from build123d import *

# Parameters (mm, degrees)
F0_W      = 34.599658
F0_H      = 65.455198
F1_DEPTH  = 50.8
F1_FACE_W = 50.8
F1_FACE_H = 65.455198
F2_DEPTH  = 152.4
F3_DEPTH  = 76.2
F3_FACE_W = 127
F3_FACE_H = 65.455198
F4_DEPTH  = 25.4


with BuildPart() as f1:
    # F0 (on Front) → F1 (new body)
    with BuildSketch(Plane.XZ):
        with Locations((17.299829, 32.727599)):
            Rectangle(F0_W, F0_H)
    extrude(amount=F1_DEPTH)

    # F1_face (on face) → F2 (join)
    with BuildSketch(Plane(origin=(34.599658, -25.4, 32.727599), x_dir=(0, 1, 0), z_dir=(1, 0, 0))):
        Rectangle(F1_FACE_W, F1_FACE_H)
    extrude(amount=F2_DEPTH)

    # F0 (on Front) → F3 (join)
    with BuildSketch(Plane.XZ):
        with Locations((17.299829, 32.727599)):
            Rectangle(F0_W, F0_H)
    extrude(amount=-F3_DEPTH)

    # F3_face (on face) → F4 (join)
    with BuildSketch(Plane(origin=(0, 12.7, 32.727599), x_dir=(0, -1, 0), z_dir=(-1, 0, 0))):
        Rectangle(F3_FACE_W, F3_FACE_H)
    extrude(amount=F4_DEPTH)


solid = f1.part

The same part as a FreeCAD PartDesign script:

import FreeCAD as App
import Part
import Sketcher
Q = App.Units.Quantity

doc = App.newDocument("Part")
body = doc.addObject("PartDesign::Body", "Body")

# Sketch on XZ plane
sketch1 = body.newObject("Sketcher::SketchObject", "Sketch")
sketch1.AttachmentSupport = (doc.getObject("XZ_Plane"), [""])
sketch1.MapMode = "FlatFace"
sketch1.addGeometry(Part.LineSegment(App.Vector(0, 65, 0), App.Vector(0, 0, 0)), False)
sketch1.addGeometry(Part.LineSegment(App.Vector(0, 0, 0), App.Vector(35, 0, 0)), False)
sketch1.addGeometry(Part.LineSegment(App.Vector(35, 0, 0), App.Vector(35, 65, 0)), False)
sketch1.addGeometry(Part.LineSegment(App.Vector(35, 65, 0), App.Vector(0, 65, 0)), False)
sketch1.addConstraint(Sketcher.Constraint("Coincident", 0, 2, 1, 1))
sketch1.addConstraint(Sketcher.Constraint("Coincident", 1, 2, 2, 1))
sketch1.addConstraint(Sketcher.Constraint("Coincident", 2, 2, 3, 1))
sketch1.addConstraint(Sketcher.Constraint("Coincident", 3, 2, 0, 1))
sketch1.addConstraint(Sketcher.Constraint("Vertical", 0))
sketch1.addConstraint(Sketcher.Constraint("Horizontal", 1))
sketch1.addConstraint(Sketcher.Constraint("Vertical", 2))
sketch1.addConstraint(Sketcher.Constraint("Horizontal", 3))
sketch1.addConstraint(Sketcher.Constraint("Coincident", 0, 2, -1, 1))
sketch1.addConstraint(Sketcher.Constraint("DistanceX", 1, 1, 1, 2, 34.599658))
sketch1.addConstraint(Sketcher.Constraint("DistanceY", 0, 2, 0, 1, 65.455198))
pad1 = body.newObject("PartDesign::Pad", "Pad")
pad1.Profile = sketch1
pad1.Length = Q("2 in")

# Sketch on YZ plane
sketch2 = body.newObject("Sketcher::SketchObject", "Sketch001")
sketch2.AttachmentSupport = (doc.getObject("YZ_Plane"), [""])
sketch2.MapMode = "FlatFace"
sketch2.AttachmentOffset = App.Placement(App.Vector(0, 0, 34.599658), App.Rotation())
sketch2.addGeometry(Part.LineSegment(App.Vector(-51, 65, 0), App.Vector(-51, 0, 0)), False)
sketch2.addGeometry(Part.LineSegment(App.Vector(-51, 0, 0), App.Vector(0, 0, 0)), False)
sketch2.addGeometry(Part.LineSegment(App.Vector(0, 0, 0), App.Vector(0, 65, 0)), False)
sketch2.addGeometry(Part.LineSegment(App.Vector(0, 65, 0), App.Vector(-51, 65, 0)), False)
sketch2.addConstraint(Sketcher.Constraint("Coincident", 0, 2, 1, 1))
sketch2.addConstraint(Sketcher.Constraint("Coincident", 1, 2, 2, 1))
sketch2.addConstraint(Sketcher.Constraint("Coincident", 2, 2, 3, 1))
sketch2.addConstraint(Sketcher.Constraint("Coincident", 3, 2, 0, 1))
sketch2.addConstraint(Sketcher.Constraint("Vertical", 0))
sketch2.addConstraint(Sketcher.Constraint("Horizontal", 1))
sketch2.addConstraint(Sketcher.Constraint("Vertical", 2))
sketch2.addConstraint(Sketcher.Constraint("Horizontal", 3))
sketch2.addConstraint(Sketcher.Constraint("Coincident", 1, 2, -1, 1))
sketch2.addConstraint(Sketcher.Constraint("DistanceX", 1, 1, 1, 2, Q("2 in")))
sketch2.addConstraint(Sketcher.Constraint("DistanceY", 0, 2, 0, 1, 65.455198))
pad2 = body.newObject("PartDesign::Pad", "Pad001")
pad2.Profile = sketch2
pad2.Length = Q("6 in")

# Sketch on XZ plane
sketch3 = body.newObject("Sketcher::SketchObject", "Sketch002")
sketch3.AttachmentSupport = (doc.getObject("XZ_Plane"), [""])
sketch3.MapMode = "FlatFace"
sketch3.addGeometry(Part.LineSegment(App.Vector(0, 65, 0), App.Vector(0, 0, 0)), False)
sketch3.addGeometry(Part.LineSegment(App.Vector(0, 0, 0), App.Vector(35, 0, 0)), False)
sketch3.addGeometry(Part.LineSegment(App.Vector(35, 0, 0), App.Vector(35, 65, 0)), False)
sketch3.addGeometry(Part.LineSegment(App.Vector(35, 65, 0), App.Vector(0, 65, 0)), False)
sketch3.addConstraint(Sketcher.Constraint("Coincident", 0, 2, 1, 1))
sketch3.addConstraint(Sketcher.Constraint("Coincident", 1, 2, 2, 1))
sketch3.addConstraint(Sketcher.Constraint("Coincident", 2, 2, 3, 1))
sketch3.addConstraint(Sketcher.Constraint("Coincident", 3, 2, 0, 1))
sketch3.addConstraint(Sketcher.Constraint("Vertical", 0))
sketch3.addConstraint(Sketcher.Constraint("Horizontal", 1))
sketch3.addConstraint(Sketcher.Constraint("Vertical", 2))
sketch3.addConstraint(Sketcher.Constraint("Horizontal", 3))
sketch3.addConstraint(Sketcher.Constraint("Coincident", 0, 2, -1, 1))
sketch3.addConstraint(Sketcher.Constraint("DistanceX", 1, 1, 1, 2, 34.599658))
sketch3.addConstraint(Sketcher.Constraint("DistanceY", 0, 2, 0, 1, 65.455198))
pad3 = body.newObject("PartDesign::Pad", "Pad002")
pad3.Profile = sketch3
pad3.Length = Q("3 in")
pad3.Reversed = True

# Sketch on YZ plane
sketch4 = body.newObject("Sketcher::SketchObject", "Sketch003")
sketch4.AttachmentSupport = (doc.getObject("YZ_Plane"), [""])
sketch4.MapMode = "FlatFace"
sketch4.addGeometry(Part.LineSegment(App.Vector(76, 65, 0), App.Vector(76, 0, 0)), False)
sketch4.addGeometry(Part.LineSegment(App.Vector(76, 0, 0), App.Vector(-51, 0, 0)), False)
sketch4.addGeometry(Part.LineSegment(App.Vector(-51, 0, 0), App.Vector(-51, 65, 0)), False)
sketch4.addGeometry(Part.LineSegment(App.Vector(-51, 65, 0), App.Vector(76, 65, 0)), False)
sketch4.addConstraint(Sketcher.Constraint("Coincident", 0, 2, 1, 1))
sketch4.addConstraint(Sketcher.Constraint("Coincident", 1, 2, 2, 1))
sketch4.addConstraint(Sketcher.Constraint("Coincident", 2, 2, 3, 1))
sketch4.addConstraint(Sketcher.Constraint("Coincident", 3, 2, 0, 1))
sketch4.addConstraint(Sketcher.Constraint("Vertical", 0))
sketch4.addConstraint(Sketcher.Constraint("Horizontal", 1))
sketch4.addConstraint(Sketcher.Constraint("Vertical", 2))
sketch4.addConstraint(Sketcher.Constraint("Horizontal", 3))
sketch4.addConstraint(Sketcher.Constraint("PointOnObject", 0, 2, -1))
sketch4.addConstraint(Sketcher.Constraint("DistanceX", 1, 2, 1, 1, Q("5 in")))
sketch4.addConstraint(Sketcher.Constraint("DistanceX", -1, 1, 0, 2, Q("3 in")))
sketch4.addConstraint(Sketcher.Constraint("DistanceY", 0, 2, 0, 1, 65.455198))
pad4 = body.newObject("PartDesign::Pad", "Pad003")
pad4.Profile = sketch4
pad4.Length = Q("1 in")
pad4.Reversed = True

doc.recompute()
